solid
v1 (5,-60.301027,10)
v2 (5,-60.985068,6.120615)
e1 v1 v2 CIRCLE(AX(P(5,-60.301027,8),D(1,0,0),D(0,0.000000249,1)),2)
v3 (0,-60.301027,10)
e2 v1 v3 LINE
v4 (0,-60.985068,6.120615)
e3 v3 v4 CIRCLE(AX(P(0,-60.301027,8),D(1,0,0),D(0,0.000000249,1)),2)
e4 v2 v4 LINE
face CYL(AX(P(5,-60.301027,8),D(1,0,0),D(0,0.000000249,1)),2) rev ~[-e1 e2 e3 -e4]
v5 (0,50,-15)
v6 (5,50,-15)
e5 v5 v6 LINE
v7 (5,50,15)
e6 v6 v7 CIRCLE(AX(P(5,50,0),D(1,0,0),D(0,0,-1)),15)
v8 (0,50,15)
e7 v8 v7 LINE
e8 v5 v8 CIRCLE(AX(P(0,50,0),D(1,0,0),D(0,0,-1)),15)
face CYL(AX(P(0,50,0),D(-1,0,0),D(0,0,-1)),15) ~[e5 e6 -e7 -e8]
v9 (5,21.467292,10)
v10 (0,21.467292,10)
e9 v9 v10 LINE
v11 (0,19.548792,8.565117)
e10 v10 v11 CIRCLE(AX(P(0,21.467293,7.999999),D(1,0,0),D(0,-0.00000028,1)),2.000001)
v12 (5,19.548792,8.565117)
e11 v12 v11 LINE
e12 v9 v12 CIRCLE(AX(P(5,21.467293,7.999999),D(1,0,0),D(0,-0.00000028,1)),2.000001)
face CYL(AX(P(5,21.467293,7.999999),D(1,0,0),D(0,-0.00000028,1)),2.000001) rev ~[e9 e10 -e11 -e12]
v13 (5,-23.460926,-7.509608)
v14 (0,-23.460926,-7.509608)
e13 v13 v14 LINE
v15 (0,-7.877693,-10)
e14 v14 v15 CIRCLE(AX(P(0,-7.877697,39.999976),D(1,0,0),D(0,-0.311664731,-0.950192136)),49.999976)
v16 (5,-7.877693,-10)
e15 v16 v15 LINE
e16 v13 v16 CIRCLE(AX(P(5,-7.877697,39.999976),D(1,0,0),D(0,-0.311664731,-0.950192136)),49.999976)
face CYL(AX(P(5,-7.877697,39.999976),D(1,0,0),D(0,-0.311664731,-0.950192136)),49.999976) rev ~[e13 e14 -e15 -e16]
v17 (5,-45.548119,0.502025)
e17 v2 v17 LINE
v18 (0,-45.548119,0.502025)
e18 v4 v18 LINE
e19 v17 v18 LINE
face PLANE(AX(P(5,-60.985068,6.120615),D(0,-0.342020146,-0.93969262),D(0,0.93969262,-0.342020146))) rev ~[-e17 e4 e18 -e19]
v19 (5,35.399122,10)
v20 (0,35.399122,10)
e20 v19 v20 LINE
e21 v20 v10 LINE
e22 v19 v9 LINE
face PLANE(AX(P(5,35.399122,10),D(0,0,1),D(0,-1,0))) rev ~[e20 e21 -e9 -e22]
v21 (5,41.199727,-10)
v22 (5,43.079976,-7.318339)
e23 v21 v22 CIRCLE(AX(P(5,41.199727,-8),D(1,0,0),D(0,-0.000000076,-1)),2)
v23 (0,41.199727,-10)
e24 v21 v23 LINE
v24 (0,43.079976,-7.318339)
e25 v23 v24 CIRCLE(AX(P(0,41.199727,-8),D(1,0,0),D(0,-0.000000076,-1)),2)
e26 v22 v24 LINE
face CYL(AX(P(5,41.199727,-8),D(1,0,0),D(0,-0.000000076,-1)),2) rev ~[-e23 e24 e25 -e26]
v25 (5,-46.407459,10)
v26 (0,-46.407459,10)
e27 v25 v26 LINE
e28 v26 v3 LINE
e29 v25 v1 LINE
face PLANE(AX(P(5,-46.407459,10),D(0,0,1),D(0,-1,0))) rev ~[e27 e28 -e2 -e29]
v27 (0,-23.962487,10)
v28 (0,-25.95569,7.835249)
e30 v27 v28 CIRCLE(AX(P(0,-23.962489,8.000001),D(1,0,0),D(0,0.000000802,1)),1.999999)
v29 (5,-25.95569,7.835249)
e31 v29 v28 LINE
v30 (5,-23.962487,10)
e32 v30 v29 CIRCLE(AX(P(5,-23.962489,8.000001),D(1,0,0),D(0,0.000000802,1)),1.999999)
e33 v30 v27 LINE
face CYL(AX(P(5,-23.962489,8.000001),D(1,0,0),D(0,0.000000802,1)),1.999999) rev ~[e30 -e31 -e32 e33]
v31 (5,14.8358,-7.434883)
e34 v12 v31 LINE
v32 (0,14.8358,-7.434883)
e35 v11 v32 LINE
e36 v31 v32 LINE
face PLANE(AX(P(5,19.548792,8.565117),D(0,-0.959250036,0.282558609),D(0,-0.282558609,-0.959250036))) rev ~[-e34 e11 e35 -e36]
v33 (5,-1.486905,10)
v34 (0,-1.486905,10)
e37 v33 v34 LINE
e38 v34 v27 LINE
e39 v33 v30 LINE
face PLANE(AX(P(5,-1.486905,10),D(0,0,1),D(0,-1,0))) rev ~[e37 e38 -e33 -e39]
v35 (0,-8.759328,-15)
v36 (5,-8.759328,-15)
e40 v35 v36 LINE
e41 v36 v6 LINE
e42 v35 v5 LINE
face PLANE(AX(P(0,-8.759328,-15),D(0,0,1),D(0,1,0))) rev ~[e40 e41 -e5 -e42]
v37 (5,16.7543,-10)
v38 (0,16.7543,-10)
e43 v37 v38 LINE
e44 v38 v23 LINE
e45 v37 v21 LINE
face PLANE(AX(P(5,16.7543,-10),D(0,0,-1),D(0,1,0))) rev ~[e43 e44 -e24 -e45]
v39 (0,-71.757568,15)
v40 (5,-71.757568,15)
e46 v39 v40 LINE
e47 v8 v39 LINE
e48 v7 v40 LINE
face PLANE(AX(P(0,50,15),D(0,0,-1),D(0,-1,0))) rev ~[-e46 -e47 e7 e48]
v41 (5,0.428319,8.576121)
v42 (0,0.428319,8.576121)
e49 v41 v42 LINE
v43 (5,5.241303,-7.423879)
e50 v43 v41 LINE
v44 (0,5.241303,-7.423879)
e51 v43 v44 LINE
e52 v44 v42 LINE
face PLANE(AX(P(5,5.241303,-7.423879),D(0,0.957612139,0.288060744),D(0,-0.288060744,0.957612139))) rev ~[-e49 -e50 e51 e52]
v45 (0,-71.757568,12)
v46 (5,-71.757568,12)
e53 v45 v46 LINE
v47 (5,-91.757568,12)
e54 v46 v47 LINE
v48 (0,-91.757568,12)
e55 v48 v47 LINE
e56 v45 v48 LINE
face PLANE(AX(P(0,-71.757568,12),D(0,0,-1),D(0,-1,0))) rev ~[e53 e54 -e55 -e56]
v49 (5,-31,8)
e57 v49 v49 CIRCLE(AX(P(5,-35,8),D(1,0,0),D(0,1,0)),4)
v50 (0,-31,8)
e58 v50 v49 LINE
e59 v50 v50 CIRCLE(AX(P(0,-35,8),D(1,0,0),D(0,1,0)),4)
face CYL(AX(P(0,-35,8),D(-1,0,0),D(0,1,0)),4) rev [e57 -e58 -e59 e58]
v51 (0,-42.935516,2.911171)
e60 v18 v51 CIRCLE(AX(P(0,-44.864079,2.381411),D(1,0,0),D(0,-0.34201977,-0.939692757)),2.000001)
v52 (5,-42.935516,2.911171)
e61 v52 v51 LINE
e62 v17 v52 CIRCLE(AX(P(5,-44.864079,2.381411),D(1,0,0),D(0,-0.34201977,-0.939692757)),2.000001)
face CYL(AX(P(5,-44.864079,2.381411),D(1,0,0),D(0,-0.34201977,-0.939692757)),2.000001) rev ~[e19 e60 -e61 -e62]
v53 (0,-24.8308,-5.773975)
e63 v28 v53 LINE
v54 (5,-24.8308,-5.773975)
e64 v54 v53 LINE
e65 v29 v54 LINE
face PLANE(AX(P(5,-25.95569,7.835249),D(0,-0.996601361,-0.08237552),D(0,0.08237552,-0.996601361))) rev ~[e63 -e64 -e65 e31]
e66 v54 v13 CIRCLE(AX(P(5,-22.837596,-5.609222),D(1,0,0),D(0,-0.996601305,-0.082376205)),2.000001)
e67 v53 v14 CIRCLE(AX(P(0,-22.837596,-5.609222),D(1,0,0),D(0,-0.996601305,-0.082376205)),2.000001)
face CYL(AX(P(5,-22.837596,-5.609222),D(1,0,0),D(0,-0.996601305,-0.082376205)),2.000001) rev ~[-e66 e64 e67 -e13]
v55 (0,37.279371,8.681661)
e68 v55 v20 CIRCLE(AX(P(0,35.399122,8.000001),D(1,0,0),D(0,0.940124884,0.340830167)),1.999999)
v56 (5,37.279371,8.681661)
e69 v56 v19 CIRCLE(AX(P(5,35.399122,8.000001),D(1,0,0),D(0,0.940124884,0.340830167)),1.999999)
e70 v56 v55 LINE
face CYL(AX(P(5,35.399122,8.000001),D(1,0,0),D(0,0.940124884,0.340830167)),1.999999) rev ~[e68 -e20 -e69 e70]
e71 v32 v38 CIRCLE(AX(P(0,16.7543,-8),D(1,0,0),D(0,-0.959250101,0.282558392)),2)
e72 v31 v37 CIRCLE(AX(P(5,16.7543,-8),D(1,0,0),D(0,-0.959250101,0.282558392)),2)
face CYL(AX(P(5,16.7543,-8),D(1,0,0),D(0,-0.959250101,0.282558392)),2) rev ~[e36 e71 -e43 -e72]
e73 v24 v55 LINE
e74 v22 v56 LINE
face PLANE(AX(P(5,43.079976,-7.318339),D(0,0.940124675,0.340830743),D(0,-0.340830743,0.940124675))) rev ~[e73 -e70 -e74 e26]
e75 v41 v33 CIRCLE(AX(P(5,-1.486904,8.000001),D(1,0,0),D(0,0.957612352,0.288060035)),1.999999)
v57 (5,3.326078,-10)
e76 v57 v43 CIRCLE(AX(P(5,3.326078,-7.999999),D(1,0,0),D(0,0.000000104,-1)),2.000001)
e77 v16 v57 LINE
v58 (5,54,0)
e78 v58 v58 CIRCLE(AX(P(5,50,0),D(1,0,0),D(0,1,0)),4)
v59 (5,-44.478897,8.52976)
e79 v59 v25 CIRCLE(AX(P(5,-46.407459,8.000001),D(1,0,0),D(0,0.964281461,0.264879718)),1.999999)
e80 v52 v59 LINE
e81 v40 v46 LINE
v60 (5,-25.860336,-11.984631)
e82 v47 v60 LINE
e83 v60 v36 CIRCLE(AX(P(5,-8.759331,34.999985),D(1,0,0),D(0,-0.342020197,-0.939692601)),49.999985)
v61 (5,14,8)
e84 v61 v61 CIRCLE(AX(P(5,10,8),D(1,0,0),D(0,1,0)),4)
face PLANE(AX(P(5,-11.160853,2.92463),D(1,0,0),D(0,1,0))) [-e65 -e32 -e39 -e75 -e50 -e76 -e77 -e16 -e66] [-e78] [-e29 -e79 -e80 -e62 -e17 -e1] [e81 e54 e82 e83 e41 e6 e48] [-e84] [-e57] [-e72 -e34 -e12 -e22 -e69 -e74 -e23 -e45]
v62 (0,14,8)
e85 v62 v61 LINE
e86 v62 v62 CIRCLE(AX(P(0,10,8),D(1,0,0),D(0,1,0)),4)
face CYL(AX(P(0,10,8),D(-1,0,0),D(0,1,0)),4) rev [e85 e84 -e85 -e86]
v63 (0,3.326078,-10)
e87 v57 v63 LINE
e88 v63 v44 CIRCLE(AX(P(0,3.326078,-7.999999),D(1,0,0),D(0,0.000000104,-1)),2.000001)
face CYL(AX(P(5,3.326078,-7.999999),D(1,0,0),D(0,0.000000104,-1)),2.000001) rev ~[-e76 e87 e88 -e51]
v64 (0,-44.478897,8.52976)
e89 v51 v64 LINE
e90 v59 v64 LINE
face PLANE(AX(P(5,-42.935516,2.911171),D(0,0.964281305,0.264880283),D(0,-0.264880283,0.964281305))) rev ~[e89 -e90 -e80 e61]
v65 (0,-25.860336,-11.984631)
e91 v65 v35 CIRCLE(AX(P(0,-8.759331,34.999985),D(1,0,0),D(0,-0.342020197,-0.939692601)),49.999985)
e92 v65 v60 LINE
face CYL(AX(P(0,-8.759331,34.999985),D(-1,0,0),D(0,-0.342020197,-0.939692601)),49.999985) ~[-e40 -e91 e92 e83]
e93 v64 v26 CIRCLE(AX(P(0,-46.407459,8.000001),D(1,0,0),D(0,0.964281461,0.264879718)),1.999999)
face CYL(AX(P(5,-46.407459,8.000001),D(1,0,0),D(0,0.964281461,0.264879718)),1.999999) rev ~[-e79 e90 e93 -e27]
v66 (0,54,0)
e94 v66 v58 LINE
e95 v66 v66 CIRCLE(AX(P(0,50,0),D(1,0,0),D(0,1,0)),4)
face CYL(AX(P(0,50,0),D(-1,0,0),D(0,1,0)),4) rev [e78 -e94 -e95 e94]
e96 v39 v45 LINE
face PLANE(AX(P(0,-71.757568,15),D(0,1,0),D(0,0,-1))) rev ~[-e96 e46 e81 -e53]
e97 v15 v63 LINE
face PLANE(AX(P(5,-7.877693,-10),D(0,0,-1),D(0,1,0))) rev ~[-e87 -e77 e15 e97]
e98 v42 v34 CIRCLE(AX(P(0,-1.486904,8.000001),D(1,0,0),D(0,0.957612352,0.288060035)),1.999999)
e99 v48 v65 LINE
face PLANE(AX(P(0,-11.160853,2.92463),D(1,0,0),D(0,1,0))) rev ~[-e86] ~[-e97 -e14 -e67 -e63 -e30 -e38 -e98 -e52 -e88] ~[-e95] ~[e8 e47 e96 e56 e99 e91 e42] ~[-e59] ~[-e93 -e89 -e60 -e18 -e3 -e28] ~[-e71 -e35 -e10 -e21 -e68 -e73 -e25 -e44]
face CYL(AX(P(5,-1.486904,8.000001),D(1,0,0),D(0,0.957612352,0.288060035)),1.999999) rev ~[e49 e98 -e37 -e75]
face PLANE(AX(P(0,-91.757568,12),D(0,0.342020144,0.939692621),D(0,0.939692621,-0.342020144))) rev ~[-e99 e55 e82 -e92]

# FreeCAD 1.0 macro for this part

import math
import FreeCAD as App
import Part
import Sketcher

V = App.Vector
Q = App.Units.Quantity

doc = App.newDocument("Part")
body = doc.addObject("PartDesign::Body", "Body")

# Sketch on YZ plane
sketch1 = body.newObject("Sketcher::SketchObject", "Sketch")
sketch1.AttachmentSupport = (doc.getObject("YZ_Plane"), [""])
sketch1.MapMode = "FlatFace"
sketch1.addGeometry([
    Part.LineSegment(V(50, 15, 0), V(-71.8, 15, 0)),  # 0
    Part.LineSegment(V(-71.8, 15, 0), V(-71.8, 12, 0)),  # 1
    Part.LineSegment(V(-71.8, 12, 0), V(-91.8, 12, 0)),  # 2
    Part.LineSegment(V(-91.8, 12, 0), V(-25.9, -12, 0)),  # 3
    Part.ArcOfCircle(Part.Circle(V(-8.8, 35, 0), V(0, 0, 1), 50), math.radians(-110), math.radians(-90)),  # 4
    Part.LineSegment(V(-8.8, -15, 0), V(50, -15, 0)),  # 5
    Part.ArcOfCircle(Part.Circle(V(50, 0, 0), V(0, 0, 1), 15), math.radians(-90), math.radians(90)),  # 6
    Part.Circle(V(50, 0, 0), V(0, 0, 1), 4),  # 7
    Part.Circle(V(-35, 8, 0), V(0, 0, 1), 4),  # 8
    Part.Circle(V(10, 8, 0), V(0, 0, 1), 4),  # 9
], False)
sketch1.addConstraint([
    Sketcher.Constraint("Coincident", 0, 2, 1, 1),
    Sketcher.Constraint("Coincident", 1, 2, 2, 1),
    Sketcher.Constraint("Coincident", 2, 2, 3, 1),
    Sketcher.Constraint("Tangent", 3, 2, 4, 1),
    Sketcher.Constraint("Tangent", 4, 2, 5, 1),
    Sketcher.Constraint("Tangent", 5, 2, 6, 1),
    Sketcher.Constraint("Tangent", 6, 2, 0, 1),
    Sketcher.Constraint("Horizontal", 0),
    Sketcher.Constraint("Vertical", 1),
    Sketcher.Constraint("Horizontal", 2),
    Sketcher.Constraint("Horizontal", 5),
    Sketcher.Constraint("Coincident", 7, 3, 6, 3),
    Sketcher.Constraint("Equal", 7, 8),
    Sketcher.Constraint("Equal", 8, 9),
    Sketcher.Constraint("PointOnObject", 6, 3, -1),
    Sketcher.Constraint("Horizontal", 8, 3, 9, 3),
    Sketcher.Constraint("Diameter", 7, 8.0),
    Sketcher.Constraint("Radius", 6, 15.0),
    Sketcher.Constraint("DistanceX", 2, 2, 2, 1, 20.0),
    Sketcher.Constraint("DistanceY", 1, 2, 1, 1, 3.0),
    Sketcher.Constraint("Angle", 3, Q("-20 deg")),
    Sketcher.Constraint("DistanceX", -1, 1, 6, 3, 50.0),
    Sketcher.Constraint("DistanceX", 8, 3, -1, 1, 35.0),
    Sketcher.Constraint("DistanceY", -1, 1, 8, 3, 8.0),
    Sketcher.Constraint("DistanceX", -1, 1, 9, 3, 10.0),
    Sketcher.Constraint("Radius", 4, 49.999985),
    Sketcher.Constraint("DistanceX", 0, 2, 0, 1, 121.757568),
])
pad1 = body.newObject("PartDesign::Pad", "Pad")
pad1.Profile = sketch1
pad1.Length = 5

# Sketch on YZ plane
sketch2 = body.newObject("Sketcher::SketchObject", "Sketch001")
sketch2.AttachmentSupport = (doc.getObject("YZ_Plane"), [""])
sketch2.MapMode = "FlatFace"
sketch2.AttachmentOffset = App.Placement(V(0, 0, 5), App.Rotation())
sketch2.addGeometry([
    Part.LineSegment(V(-1.486905, 10, 0), V(-23.962487, 10, 0)),  # 0
    Part.ArcOfCircle(Part.Circle(V(-23.962489, 8.000001, 0), V(0, 0, 1), 1.999999), math.radians(89.999954), math.radians(184.725161)),  # 1
    Part.LineSegment(V(-25.95569, 7.835249, 0), V(-24.8308, -5.773975, 0)),  # 2
    Part.ArcOfCircle(Part.Circle(V(-22.837596, -5.609222, 0), V(0, 0, 1), 2.000001), math.radians(-175.274837), math.radians(-108.159585)),  # 3
    Part.ArcOfCircle(Part.Circle(V(-7.877697, 39.999976, 0), V(0, 0, 1), 49.999976), math.radians(-108.159584), math.radians(-89.999995)),  # 4
    Part.LineSegment(V(-7.877693, -10, 0), V(3.326078, -10, 0)),  # 5
    Part.ArcOfCircle(Part.Circle(V(3.326078, -7.999999, 0), V(0, 0, 1), 2.000001), math.radians(-89.999994), math.radians(16.741854)),  # 6
    Part.LineSegment(V(5.241303, -7.423879, 0), V(0.428319, 8.576121, 0)),  # 7
    Part.ArcOfCircle(Part.Circle(V(-1.486904, 8.000001, 0), V(0, 0, 1), 1.999999), math.radians(16.741849), math.radians(90.000016)),  # 8
    Part.LineSegment(V(19.548792, 8.565117, 0), V(14.8358, -7.434883, 0)),  # 9
    Part.ArcOfCircle(Part.Circle(V(16.7543, -8, 0), V(0, 0, 1), 2), math.radians(163.587043), math.radians(269.99999)),  # 10
    Part.LineSegment(V(16.7543, -10, 0), V(41.199727, -10, 0)),  # 11
    Part.ArcOfCircle(Part.Circle(V(41.199727, -8, 0), V(0, 0, 1), 2), math.radians(-90.000004), math.radians(19.9275)),  # 12
    Part.LineSegment(V(43.079976, -7.318339, 0), V(37.279371, 8.681661, 0)),  # 13
    Part.ArcOfCircle(Part.Circle(V(35.399122, 8.000001, 0), V(0, 0, 1), 1.999999), math.radians(19.92746), math.radians(90.000005)),  # 14
    Part.LineSegment(V(35.399122, 10, 0), V(21.467292, 10, 0)),  # 15
    Part.ArcOfCircle(Part.Circle(V(21.467293, 7.999999, 0), V(0, 0, 1), 2.000001), math.radians(90.000016), math.radians(163.587024)),  # 16
    Part.ArcOfCircle(Part.Circle(V(-46.407459, 8.000001, 0), V(0, 0, 1), 1.999999), math.radians(15.359806), math.radians(89.999995)),  # 17
    Part.LineSegment(V(-46.407459, 10, 0), V(-60.301027, 10, 0)),  # 18
    Part.ArcOfCircle(Part.Circle(V(-60.301027, 8, 0), V(0, 0, 1), 2), math.radians(89.999986), math.radians(249.999993)),  # 19
    Part.LineSegment(V(-60.985068, 6.120615, 0), V(-45.548119, 0.502025, 0)),  # 20
    Part.ArcOfCircle(Part.Circle(V(-44.864079, 2.381411, 0), V(0, 0, 1), 2.000001), math.radians(-109.999977), math.radians(15.359819)),  # 21
    Part.LineSegment(V(-42.935516, 2.911171, 0), V(-44.478897, 8.52976, 0)),  # 22
], False)
sketch2.addConstraint([
    Sketcher.Constraint("Coincident", 0, 2, 1, 1),
    Sketcher.Constraint("Coincident", 1, 2, 2, 1),
    Sketcher.Constraint("Coincident", 2, 2, 3, 1),
    Sketcher.Constraint("Coincident", 3, 2, 4, 1),
    Sketcher.Constraint("Coincident", 4, 2, 5, 1),
    Sketcher.Constraint("Coincident", 5, 2, 6, 1),
    Sketcher.Constraint("Coincident", 6, 2, 7, 1),
    Sketcher.Constraint("Coincident", 7, 2, 8, 1),
    Sketcher.Constraint("Coincident", 8, 2, 0, 1),
    Sketcher.Constraint("Coincident", 9, 2, 10, 1),
    Sketcher.Constraint("Coincident", 10, 2, 11, 1),
    Sketcher.Constraint("Coincident", 11, 2, 12, 1),
    Sketcher.Constraint("Coincident", 12, 2, 13, 1),
    Sketcher.Constraint("Coincident", 13, 2, 14, 1),
    Sketcher.Constraint("Coincident", 14, 2, 15, 1),
    Sketcher.Constraint("Coincident", 15, 2, 16, 1),
    Sketcher.Constraint("Coincident", 16, 2, 9, 1),
    Sketcher.Constraint("Coincident", 17, 2, 18, 1),
    Sketcher.Constraint("Coincident", 18, 2, 19, 1),
    Sketcher.Constraint("Coincident", 19, 2, 20, 1),
    Sketcher.Constraint("Coincident", 20, 2, 21, 1),
    Sketcher.Constraint("Coincident", 21, 2, 22, 1),
    Sketcher.Constraint("Coincident", 22, 2, 17, 1),
    Sketcher.Constraint("Horizontal", 0),
    Sketcher.Constraint("Horizontal", 5),
    Sketcher.Constraint("Horizontal", 11),
    Sketcher.Constraint("Horizontal", 15),
    Sketcher.Constraint("Horizontal", 18),
    Sketcher.Constraint("Radius", 1, 1.999999),
    Sketcher.Constraint("Radius", 3, 2.000001),
    Sketcher.Constraint("Radius", 6, 2.000001),
    Sketcher.Constraint("Radius", 8, 1.999999),
    Sketcher.Constraint("Radius", 10, 2.0),
    Sketcher.Constraint("Radius", 12, 2.0),
    Sketcher.Constraint("Radius", 14, 1.999999),
    Sketcher.Constraint("Radius", 16, 2.000001),
    Sketcher.Constraint("Radius", 17, 1.999999),
    Sketcher.Constraint("Radius", 19, 2.0),
    Sketcher.Constraint("Radius", 21, 2.000001),
    Sketcher.Constraint("DistanceY", -1, 1, 1, 3, 8.000001),
    Sketcher.Constraint("DistanceY", 6, 3, -1, 1, 7.999999),
    Sketcher.Constraint("DistanceY", 10, 3, -1, 1, 8.0),
    Sketcher.Constraint("DistanceY", -1, 1, 14, 3, 8.000001),
    Sketcher.Constraint("DistanceY", -1, 1, 17, 3, 8.000001),
    Sketcher.Constraint("DistanceY", 6, 2, 7, 2, 16.0),
    Sketcher.Constraint("DistanceY", 12, 2, 13, 2, 16.0),
    Sketcher.Constraint("DistanceY", 9, 2, 16, 2, 16.0),
    Sketcher.Constraint("Radius", 4, 49.999976),
    Sketcher.Constraint("DistanceX", 0, 2, 0, 1, 22.475582),
    Sketcher.Constraint("DistanceX", 5, 1, 5, 2, 11.203771),
    Sketcher.Constraint("DistanceX", 15, 2, 15, 1, 13.93183),
    Sketcher.Constraint("DistanceX", -1, 1, 10, 3, 16.7543),
    Sketcher.Constraint("DistanceX", 2, 2, -1, 1, 24.8308),
    Sketcher.Constraint("DistanceX", -1, 1, 9, 2, 14.8358),
    Sketcher.Constraint("DistanceX", -1, 1, 10, 2, 16.7543),
    Sketcher.Constraint("DistanceX", 3, 3, 4, 3, 14.959899),
    Sketcher.Constraint("DistanceX", 1, 2, 1, 3, 1.993201),
    Sketcher.Constraint("DistanceX", 16, 2, 15, 2, 1.9185),
    Sketcher.Constraint("Distance", 13, 17.019019),
    Sketcher.Constraint("Distance", 20, 16.427658),
    Sketcher.Constraint("Distance", 22, 5.826712),
    Sketcher.Constraint("DistanceX", 11, 1, 11, 2, 24.445427),
    Sketcher.Constraint("DistanceX", 18, 2, 18, 1, 13.893568),
    Sketcher.Constraint("DistanceX", 1, 3, -1, 1, 23.962489),
    Sketcher.Constraint("DistanceX", 17, 3, -1, 1, 46.407459),
    Sketcher.Constraint("DistanceX", 21, 3, -1, 1, 44.864079),
    Sketcher.Constraint("DistanceY", -1, 1, 21, 3, 2.381411),
    Sketcher.Constraint("DistanceY", 6, 2, -1, 1, 7.423879),
    Sketcher.Constraint("DistanceX", -1, 1, 7, 2, 0.428319),
    Sketcher.Constraint("DistanceY", 12, 2, -1, 1, 7.318339),
    Sketcher.Constraint("DistanceX", -1, 1, 13, 2, 37.279371),
    Sketcher.Constraint("DistanceX", -1, 1, 14, 2, 35.399122),
    Sketcher.Constraint("DistanceX", 17, 2, -1, 1, 46.407459),
    Sketcher.Constraint("DistanceX", 19, 2, -1, 1, 60.985068),
    Sketcher.Constraint("DistanceX", 20, 2, -1, 1, 45.548119),
    Sketcher.Constraint("DistanceY", -1, 1, 21, 2, 2.911171),
    Sketcher.Constraint("DistanceX", 1, 3, 4, 3, 16.084792),
    Sketcher.Constraint("DistanceX", 6, 3, 12, 3, 37.873649),
    Sketcher.Constraint("DistanceX", 0, 2, 3, 3, 1.124891),
    Sketcher.Constraint("DistanceX", 3, 2, 3, 3, 0.62333),
    Sketcher.Constraint("DistanceX", 4, 2, 6, 3, 11.203771),
])
pocket1 = body.newObject("PartDesign::Pocket", "Pocket")
pocket1.Profile = sketch2
pocket1.Length = 25

doc.recompute()
